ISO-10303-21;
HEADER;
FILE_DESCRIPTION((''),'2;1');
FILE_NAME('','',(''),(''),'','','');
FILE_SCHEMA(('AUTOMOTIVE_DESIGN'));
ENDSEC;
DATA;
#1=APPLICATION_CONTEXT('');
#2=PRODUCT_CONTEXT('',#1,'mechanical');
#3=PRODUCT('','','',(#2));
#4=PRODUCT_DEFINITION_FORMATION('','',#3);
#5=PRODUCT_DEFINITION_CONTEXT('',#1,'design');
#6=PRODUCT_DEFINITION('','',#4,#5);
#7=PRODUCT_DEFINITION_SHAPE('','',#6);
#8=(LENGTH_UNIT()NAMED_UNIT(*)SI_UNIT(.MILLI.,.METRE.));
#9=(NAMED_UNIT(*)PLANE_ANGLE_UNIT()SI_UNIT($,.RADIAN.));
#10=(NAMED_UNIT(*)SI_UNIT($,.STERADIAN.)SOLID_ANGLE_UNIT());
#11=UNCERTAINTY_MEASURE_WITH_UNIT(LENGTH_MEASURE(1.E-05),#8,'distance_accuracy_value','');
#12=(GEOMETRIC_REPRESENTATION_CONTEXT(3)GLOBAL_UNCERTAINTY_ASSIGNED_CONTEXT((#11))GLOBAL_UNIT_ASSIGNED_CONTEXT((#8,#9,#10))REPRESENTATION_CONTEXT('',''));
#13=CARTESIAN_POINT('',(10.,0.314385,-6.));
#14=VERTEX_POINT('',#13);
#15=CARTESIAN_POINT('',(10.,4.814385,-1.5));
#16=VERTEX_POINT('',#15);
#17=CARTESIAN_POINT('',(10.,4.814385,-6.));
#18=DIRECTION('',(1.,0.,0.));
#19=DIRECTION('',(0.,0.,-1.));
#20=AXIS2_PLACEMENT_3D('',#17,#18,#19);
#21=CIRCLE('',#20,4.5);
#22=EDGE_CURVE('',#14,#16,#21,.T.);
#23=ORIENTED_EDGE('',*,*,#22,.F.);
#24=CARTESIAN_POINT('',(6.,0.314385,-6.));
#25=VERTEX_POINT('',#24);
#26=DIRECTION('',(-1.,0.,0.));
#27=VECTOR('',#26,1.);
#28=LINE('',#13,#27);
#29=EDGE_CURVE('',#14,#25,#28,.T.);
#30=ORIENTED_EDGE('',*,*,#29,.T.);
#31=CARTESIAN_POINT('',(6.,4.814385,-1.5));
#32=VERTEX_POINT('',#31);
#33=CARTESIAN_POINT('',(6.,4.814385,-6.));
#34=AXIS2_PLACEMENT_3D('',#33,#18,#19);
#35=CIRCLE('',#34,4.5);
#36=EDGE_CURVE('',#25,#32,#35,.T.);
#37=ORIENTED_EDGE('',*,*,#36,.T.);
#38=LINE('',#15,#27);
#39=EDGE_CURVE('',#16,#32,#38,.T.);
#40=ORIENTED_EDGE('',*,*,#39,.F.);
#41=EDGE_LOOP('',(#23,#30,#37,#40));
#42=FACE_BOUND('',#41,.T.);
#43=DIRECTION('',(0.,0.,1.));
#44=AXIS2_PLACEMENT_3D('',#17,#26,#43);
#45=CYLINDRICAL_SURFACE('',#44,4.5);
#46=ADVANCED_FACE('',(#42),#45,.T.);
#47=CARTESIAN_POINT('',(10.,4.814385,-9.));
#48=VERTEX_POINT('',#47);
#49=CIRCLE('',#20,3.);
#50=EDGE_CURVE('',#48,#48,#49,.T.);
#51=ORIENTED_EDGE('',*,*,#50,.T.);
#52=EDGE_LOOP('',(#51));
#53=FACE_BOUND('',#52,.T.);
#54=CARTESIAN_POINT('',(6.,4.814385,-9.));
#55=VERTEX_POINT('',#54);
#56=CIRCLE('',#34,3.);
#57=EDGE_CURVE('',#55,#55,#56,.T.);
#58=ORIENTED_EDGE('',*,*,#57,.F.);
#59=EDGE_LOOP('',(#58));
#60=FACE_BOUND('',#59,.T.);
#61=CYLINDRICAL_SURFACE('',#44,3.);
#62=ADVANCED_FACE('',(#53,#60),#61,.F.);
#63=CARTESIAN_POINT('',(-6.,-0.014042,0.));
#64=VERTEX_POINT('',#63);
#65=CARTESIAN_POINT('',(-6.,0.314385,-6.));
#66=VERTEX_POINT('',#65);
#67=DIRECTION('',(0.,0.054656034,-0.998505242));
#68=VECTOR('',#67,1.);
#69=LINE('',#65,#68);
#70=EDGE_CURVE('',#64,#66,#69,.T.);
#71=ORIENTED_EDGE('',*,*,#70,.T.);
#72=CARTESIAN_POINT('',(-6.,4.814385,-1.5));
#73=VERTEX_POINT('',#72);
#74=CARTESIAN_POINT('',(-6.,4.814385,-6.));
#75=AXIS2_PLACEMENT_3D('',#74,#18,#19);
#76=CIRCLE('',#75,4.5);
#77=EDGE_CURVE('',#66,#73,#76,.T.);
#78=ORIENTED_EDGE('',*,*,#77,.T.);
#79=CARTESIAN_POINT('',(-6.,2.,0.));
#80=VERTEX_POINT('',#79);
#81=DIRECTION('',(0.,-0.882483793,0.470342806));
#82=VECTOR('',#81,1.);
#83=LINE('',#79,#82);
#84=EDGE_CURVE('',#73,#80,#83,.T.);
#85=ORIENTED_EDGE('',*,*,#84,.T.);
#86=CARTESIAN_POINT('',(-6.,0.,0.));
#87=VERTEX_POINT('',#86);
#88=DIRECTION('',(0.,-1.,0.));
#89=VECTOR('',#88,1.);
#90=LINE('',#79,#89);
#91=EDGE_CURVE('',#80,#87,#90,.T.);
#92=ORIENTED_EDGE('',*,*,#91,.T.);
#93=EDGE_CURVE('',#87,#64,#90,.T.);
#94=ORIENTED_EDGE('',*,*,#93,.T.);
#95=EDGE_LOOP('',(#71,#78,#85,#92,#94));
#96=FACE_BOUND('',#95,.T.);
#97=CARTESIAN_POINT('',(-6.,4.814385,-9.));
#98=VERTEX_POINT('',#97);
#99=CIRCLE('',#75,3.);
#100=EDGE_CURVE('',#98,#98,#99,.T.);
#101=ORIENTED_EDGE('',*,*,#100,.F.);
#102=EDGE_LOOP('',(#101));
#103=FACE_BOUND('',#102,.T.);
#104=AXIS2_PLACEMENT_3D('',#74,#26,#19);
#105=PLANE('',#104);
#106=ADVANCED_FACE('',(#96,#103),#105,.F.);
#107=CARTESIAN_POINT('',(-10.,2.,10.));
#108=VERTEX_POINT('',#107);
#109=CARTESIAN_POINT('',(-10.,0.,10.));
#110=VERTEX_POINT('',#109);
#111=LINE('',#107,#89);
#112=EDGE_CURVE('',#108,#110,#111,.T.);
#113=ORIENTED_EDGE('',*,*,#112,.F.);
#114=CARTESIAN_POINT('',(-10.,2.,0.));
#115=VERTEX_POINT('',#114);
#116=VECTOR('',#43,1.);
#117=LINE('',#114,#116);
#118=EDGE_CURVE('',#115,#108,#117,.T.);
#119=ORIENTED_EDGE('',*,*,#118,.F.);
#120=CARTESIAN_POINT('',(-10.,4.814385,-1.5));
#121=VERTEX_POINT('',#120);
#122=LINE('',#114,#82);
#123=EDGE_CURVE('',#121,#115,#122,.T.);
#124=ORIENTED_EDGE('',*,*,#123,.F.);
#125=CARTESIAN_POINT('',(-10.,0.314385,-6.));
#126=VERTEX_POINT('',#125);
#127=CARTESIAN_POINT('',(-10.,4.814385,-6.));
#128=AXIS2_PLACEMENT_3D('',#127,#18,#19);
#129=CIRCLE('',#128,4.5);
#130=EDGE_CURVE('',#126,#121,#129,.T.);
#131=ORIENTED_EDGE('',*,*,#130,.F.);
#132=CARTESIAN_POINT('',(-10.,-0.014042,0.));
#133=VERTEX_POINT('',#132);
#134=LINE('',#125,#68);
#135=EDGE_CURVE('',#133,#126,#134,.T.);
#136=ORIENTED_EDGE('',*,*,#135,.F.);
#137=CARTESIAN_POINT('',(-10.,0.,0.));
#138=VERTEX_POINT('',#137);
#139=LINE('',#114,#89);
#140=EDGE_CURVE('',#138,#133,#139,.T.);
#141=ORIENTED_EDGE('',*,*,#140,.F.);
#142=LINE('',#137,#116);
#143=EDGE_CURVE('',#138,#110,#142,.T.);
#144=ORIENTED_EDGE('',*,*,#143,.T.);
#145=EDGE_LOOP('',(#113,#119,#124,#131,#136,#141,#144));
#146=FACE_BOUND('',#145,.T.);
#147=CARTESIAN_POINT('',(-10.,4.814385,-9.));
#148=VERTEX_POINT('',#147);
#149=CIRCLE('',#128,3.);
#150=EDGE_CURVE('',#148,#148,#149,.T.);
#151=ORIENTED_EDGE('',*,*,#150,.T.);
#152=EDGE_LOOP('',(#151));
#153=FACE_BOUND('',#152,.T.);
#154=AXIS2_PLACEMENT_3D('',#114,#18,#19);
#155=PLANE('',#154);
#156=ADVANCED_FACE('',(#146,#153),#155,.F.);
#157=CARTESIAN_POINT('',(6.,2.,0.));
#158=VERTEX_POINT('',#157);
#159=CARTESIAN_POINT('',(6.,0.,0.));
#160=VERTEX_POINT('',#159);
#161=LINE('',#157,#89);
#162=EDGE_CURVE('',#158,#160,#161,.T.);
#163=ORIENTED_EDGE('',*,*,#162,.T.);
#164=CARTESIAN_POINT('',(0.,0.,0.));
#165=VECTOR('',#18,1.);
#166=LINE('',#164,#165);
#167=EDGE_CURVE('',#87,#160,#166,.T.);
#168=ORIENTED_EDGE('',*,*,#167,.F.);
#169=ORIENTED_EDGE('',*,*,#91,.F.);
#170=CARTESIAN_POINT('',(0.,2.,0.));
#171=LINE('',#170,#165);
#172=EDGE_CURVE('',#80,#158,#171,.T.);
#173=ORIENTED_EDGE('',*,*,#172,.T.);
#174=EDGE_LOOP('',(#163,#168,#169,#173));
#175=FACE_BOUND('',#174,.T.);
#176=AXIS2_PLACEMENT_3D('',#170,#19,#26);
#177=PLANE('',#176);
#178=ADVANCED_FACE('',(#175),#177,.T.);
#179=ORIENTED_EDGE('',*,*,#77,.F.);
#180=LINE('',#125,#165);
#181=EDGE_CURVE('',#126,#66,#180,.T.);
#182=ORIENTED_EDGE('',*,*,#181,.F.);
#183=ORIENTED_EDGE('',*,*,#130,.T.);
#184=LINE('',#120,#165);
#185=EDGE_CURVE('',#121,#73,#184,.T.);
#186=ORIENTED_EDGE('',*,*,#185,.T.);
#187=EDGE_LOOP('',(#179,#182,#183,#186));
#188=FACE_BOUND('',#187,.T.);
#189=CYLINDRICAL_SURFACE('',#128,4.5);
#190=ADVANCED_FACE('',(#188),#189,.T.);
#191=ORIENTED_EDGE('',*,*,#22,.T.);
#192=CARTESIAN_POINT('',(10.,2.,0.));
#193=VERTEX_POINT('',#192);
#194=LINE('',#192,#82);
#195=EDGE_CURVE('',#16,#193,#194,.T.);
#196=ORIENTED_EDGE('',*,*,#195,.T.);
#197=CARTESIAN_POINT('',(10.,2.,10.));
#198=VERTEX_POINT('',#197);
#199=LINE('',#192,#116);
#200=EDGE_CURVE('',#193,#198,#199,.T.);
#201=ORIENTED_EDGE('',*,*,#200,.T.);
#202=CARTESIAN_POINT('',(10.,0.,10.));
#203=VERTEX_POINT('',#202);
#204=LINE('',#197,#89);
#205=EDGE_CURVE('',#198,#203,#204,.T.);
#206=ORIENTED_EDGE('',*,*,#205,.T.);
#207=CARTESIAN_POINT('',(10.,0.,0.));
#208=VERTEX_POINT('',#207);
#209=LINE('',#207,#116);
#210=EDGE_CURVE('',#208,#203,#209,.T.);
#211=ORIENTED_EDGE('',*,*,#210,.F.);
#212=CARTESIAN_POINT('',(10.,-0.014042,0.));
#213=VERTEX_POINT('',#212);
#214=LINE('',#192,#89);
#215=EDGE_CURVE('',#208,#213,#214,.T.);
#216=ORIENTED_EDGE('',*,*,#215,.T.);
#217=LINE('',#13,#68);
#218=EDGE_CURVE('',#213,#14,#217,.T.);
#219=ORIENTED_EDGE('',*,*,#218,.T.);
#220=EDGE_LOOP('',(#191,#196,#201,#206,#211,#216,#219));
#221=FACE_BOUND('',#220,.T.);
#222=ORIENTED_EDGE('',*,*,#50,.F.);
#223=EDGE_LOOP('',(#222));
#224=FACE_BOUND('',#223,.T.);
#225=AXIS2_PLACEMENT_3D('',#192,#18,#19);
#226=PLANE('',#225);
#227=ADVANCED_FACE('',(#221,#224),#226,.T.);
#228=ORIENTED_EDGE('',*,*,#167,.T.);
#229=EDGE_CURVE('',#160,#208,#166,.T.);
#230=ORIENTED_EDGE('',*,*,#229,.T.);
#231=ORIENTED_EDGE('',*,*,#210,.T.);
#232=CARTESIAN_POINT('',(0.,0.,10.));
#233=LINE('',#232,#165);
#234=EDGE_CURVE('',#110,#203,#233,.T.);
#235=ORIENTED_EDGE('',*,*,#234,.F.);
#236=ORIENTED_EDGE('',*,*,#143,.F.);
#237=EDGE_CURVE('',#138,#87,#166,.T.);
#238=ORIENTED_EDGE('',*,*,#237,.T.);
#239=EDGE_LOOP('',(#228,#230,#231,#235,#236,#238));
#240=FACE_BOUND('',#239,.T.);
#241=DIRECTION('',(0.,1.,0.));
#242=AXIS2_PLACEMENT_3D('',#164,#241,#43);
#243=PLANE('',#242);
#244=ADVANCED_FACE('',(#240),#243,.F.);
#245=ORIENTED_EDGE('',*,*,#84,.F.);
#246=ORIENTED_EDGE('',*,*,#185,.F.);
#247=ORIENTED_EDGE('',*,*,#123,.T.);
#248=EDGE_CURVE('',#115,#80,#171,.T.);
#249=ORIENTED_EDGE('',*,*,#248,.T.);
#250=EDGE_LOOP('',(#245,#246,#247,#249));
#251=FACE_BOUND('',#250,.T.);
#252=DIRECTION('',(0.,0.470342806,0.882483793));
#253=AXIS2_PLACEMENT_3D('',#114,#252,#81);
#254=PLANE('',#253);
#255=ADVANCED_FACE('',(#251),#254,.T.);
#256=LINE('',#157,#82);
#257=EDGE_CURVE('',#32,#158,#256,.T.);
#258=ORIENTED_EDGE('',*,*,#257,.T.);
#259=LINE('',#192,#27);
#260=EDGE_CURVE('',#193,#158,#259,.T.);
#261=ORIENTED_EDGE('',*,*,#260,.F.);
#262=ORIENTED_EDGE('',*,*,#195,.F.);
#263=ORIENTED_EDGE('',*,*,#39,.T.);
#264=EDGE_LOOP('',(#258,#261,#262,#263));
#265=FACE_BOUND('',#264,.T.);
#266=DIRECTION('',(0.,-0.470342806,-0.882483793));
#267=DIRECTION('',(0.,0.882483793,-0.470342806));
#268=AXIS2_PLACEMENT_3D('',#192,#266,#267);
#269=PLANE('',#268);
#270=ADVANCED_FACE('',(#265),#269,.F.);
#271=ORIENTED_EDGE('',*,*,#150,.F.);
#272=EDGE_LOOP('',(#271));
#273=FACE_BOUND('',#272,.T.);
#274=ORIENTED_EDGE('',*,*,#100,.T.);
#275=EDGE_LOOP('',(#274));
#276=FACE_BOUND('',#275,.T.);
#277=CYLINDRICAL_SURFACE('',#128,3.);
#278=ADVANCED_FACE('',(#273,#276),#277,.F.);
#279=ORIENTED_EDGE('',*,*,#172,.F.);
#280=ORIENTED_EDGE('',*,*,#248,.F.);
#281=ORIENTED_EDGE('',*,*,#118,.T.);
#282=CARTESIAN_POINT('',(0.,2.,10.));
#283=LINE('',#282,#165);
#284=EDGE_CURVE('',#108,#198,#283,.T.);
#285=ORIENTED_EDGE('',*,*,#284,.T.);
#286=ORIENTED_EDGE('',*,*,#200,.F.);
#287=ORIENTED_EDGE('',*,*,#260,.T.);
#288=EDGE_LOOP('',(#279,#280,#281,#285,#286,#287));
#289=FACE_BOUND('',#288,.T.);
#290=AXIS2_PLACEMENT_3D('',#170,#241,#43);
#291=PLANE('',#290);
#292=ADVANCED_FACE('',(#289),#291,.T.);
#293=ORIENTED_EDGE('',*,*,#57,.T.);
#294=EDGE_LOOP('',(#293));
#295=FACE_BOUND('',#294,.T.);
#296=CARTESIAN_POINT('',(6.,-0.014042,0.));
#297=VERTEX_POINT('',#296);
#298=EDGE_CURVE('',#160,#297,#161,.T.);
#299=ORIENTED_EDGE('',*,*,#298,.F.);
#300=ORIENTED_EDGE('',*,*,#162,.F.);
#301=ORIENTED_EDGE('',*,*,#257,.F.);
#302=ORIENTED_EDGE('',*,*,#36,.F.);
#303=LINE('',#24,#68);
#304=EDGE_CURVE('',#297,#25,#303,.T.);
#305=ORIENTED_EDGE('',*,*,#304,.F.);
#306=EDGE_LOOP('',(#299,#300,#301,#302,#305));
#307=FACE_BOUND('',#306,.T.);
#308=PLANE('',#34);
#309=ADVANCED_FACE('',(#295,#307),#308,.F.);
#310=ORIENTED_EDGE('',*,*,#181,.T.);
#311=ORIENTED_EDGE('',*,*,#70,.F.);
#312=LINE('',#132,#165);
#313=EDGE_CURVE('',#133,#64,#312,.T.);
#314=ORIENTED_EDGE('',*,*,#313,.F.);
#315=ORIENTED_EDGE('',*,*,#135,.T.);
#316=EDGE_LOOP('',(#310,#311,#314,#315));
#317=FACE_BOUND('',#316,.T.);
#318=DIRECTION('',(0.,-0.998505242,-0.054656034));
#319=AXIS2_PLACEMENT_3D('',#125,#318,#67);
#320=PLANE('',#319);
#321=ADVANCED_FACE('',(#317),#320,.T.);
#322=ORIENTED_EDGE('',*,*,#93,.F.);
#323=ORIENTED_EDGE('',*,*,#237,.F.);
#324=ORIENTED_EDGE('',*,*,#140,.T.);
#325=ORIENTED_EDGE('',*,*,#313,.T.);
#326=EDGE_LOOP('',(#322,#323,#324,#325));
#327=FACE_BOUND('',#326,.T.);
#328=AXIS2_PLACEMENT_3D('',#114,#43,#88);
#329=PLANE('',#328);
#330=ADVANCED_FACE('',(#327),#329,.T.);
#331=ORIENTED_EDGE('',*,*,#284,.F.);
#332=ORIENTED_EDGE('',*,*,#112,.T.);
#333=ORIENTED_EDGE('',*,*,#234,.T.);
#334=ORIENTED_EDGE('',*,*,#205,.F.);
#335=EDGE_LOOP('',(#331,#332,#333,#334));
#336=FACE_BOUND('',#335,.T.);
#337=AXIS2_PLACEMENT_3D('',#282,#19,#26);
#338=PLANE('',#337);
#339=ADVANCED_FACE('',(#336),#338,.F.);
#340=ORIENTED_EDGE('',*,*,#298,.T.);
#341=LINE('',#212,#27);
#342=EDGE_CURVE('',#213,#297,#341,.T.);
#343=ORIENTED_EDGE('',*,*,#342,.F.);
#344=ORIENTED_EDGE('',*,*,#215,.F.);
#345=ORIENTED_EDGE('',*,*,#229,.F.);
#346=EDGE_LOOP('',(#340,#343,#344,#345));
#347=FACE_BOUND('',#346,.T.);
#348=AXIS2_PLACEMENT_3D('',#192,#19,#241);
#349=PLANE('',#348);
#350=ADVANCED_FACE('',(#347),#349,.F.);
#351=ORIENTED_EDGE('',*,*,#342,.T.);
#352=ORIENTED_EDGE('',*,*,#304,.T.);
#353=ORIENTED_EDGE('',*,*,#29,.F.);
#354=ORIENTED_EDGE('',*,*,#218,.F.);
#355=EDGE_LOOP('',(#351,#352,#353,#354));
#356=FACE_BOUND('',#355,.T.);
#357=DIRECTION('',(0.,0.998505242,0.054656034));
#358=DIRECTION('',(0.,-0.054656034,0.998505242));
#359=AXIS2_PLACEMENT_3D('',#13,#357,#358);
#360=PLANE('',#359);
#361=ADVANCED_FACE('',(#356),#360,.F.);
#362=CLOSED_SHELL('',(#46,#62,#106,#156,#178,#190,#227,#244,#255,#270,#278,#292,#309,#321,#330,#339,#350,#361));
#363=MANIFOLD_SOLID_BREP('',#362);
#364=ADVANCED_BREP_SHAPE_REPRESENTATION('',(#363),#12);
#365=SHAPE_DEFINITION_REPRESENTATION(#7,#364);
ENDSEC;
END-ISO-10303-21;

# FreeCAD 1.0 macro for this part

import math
import FreeCAD as App
import Part
import Sketcher
Q = App.Units.Quantity

doc = App.newDocument("Part")
body = doc.addObject("PartDesign::Body", "Body")

# Sketch on XZ plane
sketch1 = doc.addObject("Sketcher::SketchObject", "Sketch")
body.addObject(sketch1)
sketch1.AttachmentSupport = (doc.XZ_Plane, [""])
sketch1.MapMode = "FlatFace"
sketch1.addGeometry([
    Part.LineSegment(App.Vector(-10, 0, 0), App.Vector(-10, 10, 0)),
    Part.LineSegment(App.Vector(-10, 10, 0), App.Vector(10, 10, 0)),
    Part.LineSegment(App.Vector(10, 10, 0), App.Vector(10, 0, 0)),
    Part.LineSegment(App.Vector(10, 0, 0), App.Vector(-10, 0, 0)),
], False)
sketch1.addConstraint([
    Sketcher.Constraint("Coincident", 0, 2, 1, 1),
    Sketcher.Constraint("Coincident", 1, 2, 2, 1),
    Sketcher.Constraint("Coincident", 2, 2, 3, 1),
    Sketcher.Constraint("Coincident", 3, 2, 0, 1),
    Sketcher.Constraint("Vertical", 0),
    Sketcher.Constraint("Horizontal", 1),
    Sketcher.Constraint("Vertical", 2),
    Sketcher.Constraint("Horizontal", 3),
    Sketcher.Constraint("Symmetric", 2, 2, 3, 2, -1, 1),
    Sketcher.Constraint("DistanceX", 1, 1, 1, 2, Q("20 mm")),
    Sketcher.Constraint("DistanceY", 0, 1, 0, 2, Q("10 mm")),
])
pad1 = doc.addObject("PartDesign::Pad", "Pad")
body.addObject(pad1)
pad1.Profile = sketch1
pad1.Length = 2
pad1.Reversed = True

# Sketch on YZ plane
sketch2 = doc.addObject("Sketcher::SketchObject", "Sketch001")
body.addObject(sketch2)
sketch2.AttachmentSupport = (doc.YZ_Plane, [""])
sketch2.MapMode = "FlatFace"
sketch2.AttachmentOffset = App.Placement(App.Vector(0, 0, 6), App.Rotation())
sketch2.addGeometry([
    Part.LineSegment(App.Vector(4.8, -1.5, 0), App.Vector(2, 0, 0)),  # 0
    Part.LineSegment(App.Vector(2, 0, 0), App.Vector(0, 0, 0)),  # 1
    Part.LineSegment(App.Vector(0, 0, 0), App.Vector(0.3, -6, 0)),  # 2
    Part.ArcOfCircle(Part.Circle(App.Vector(4.8, -6, 0), App.Vector(0, 0, 1), 4.5), math.radians(180), math.radians(450)),  # 3
    Part.Circle(App.Vector(4.8, -6, 0), App.Vector(0, 0, 1), 3),  # 4
], False)
sketch2.addConstraint([
    Sketcher.Constraint("Coincident", 0, 2, 1, 1),
    Sketcher.Constraint("Coincident", 1, 2, 2, 1),
    Sketcher.Constraint("Coincident", 2, 2, 3, 1),
    Sketcher.Constraint("Coincident", 3, 2, 0, 1),
    Sketcher.Constraint("Horizontal", 1),
    Sketcher.Constraint("Coincident", 4, 3, 3, 3),
    Sketcher.Constraint("PointOnObject", 0, 2, -1),
    Sketcher.Constraint("Horizontal", 4, 3, 2, 2),
    Sketcher.Constraint("Vertical", 4, 3, 3, 2),
    Sketcher.Constraint("Diameter", 4, Q("6 mm")),
    Sketcher.Constraint("Radius", 3, Q("4.5 mm")),
    Sketcher.Constraint("DistanceY", 3, 3, -1, 1, Q("6 mm")),
    Sketcher.Constraint("DistanceX", -1, 1, 0, 2, Q("2 mm")),
    Sketcher.Constraint("Distance", 2, Q("6.008982 mm")),
    Sketcher.Constraint("DistanceX", 1, 2, 1, 1, Q("2.014042 mm")),
])
pad2 = doc.addObject("PartDesign::Pad", "Pad001")
body.addObject(pad2)
pad2.Profile = sketch2
pad2.Length = 4
doc.recompute()

mirrored = doc.addObject("PartDesign::Mirrored", "Mirrored")
body.addObject(mirrored)
mirrored.Originals = [pad2]
mirrored.MirrorPlane = (doc.YZ_Plane, [""])
body.Tip = mirrored

doc.recompute()
